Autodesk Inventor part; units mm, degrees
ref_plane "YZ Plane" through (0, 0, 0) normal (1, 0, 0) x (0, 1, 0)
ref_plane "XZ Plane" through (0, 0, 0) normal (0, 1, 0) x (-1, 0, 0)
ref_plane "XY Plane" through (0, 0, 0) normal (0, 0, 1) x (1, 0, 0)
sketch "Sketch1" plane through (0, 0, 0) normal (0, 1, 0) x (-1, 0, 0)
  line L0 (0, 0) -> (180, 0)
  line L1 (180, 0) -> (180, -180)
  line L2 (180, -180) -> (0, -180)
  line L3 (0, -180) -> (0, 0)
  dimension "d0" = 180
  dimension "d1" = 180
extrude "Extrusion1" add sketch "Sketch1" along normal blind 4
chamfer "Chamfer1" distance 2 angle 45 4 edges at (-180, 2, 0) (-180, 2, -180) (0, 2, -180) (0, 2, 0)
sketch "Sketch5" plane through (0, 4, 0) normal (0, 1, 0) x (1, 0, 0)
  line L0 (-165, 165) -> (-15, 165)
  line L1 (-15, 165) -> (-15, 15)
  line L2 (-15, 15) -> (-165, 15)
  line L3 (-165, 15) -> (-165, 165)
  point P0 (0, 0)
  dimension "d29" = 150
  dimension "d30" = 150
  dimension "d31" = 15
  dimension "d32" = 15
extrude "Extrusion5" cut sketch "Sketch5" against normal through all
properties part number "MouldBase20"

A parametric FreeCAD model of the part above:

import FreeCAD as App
import Part
import Sketcher
from FreeCAD import Vector
Q = App.Units.Quantity


def edges_at(feature, points):
    """Names of the edges that pass closest to the given points."""
    edges = feature.Shape.Edges
    near = lambda p: min(range(len(edges)), key=lambda i: edges[i].distToShape(Part.Vertex(*p))[0])
    return sorted({f"Edge{near(p) + 1}" for p in points})

doc = App.newDocument("Part")
body = doc.addObject("PartDesign::Body", "Body")

# Sketch on XZ plane
sketch1 = body.newObject("Sketcher::SketchObject", "Sketch")
sketch1.AttachmentSupport = (doc.getObject("XZ_Plane"), [""])
sketch1.MapMode = "FlatFace"
sketch1.addGeometry([
    Part.LineSegment(Vector(-180, 0, 0), Vector(0, 0, 0)),
    Part.LineSegment(Vector(0, 0, 0), Vector(0, -180, 0)),
    Part.LineSegment(Vector(0, -180, 0), Vector(-180, -180, 0)),
    Part.LineSegment(Vector(-180, -180, 0), Vector(-180, 0, 0)),
], False)
sketch1.addConstraint([
    Sketcher.Constraint("Coincident", 0, 2, 1, 1),
    Sketcher.Constraint("Coincident", 1, 2, 2, 1),
    Sketcher.Constraint("Coincident", 2, 2, 3, 1),
    Sketcher.Constraint("Coincident", 3, 2, 0, 1),
    Sketcher.Constraint("Horizontal", 0),
    Sketcher.Constraint("Vertical", 1),
    Sketcher.Constraint("Horizontal", 2),
    Sketcher.Constraint("Vertical", 3),
    Sketcher.Constraint("Coincident", 0, 2, -1, 1),
    Sketcher.Constraint("Equal", 2, 1),
    Sketcher.Constraint("DistanceX", 0, 1, 0, 2, Q("180 mm")),
])
pad1 = body.newObject("PartDesign::Pad", "Pad")
pad1.Profile = sketch1
pad1.Length = 4
pad1.Reversed = True
doc.recompute()

chamfer = body.newObject("PartDesign::Chamfer", "Chamfer")
chamfer.Base = (pad1, edges_at(pad1, [
    (-180, 2, 0),
    (-180, 2, -180),
    (0, 2, -180),
    (0, 2, 0),
]))
chamfer.Size = 2

# Sketch on XZ plane
sketch2 = body.newObject("Sketcher::SketchObject", "Sketch001")
sketch2.AttachmentSupport = (doc.getObject("XZ_Plane"), [""])
sketch2.MapMode = "FlatFace"
sketch2.AttachmentOffset = App.Placement(Vector(0, 0, -4), App.Rotation())
sketch2.addGeometry([
    Part.LineSegment(Vector(-15, -165, 0), Vector(-165, -165, 0)),
    Part.LineSegment(Vector(-165, -165, 0), Vector(-165, -15, 0)),
    Part.LineSegment(Vector(-165, -15, 0), Vector(-15, -15, 0)),
    Part.LineSegment(Vector(-15, -15, 0), Vector(-15, -165, 0)),
], False)
sketch2.addConstraint([
    Sketcher.Constraint("Coincident", 0, 2, 1, 1),
    Sketcher.Constraint("Coincident", 1, 2, 2, 1),
    Sketcher.Constraint("Coincident", 2, 2, 3, 1),
    Sketcher.Constraint("Coincident", 3, 2, 0, 1),
    Sketcher.Constraint("Horizontal", 0),
    Sketcher.Constraint("Vertical", 1),
    Sketcher.Constraint("Horizontal", 2),
    Sketcher.Constraint("Vertical", 3),
    Sketcher.Constraint("Equal", 2, 1),
    Sketcher.Constraint("DistanceX", 0, 2, 0, 1, Q("150 mm")),
    Sketcher.Constraint("DistanceY", 1, 2, -1, 1, Q("15 mm")),
    Sketcher.Constraint("DistanceX", 2, 2, -1, 1, Q("15 mm")),
])
pocket1 = body.newObject("PartDesign::Pocket", "Pocket")
pocket1.Profile = sketch2
pocket1.Type = "ThroughAll"
pocket1.Reversed = True

doc.recompute()
